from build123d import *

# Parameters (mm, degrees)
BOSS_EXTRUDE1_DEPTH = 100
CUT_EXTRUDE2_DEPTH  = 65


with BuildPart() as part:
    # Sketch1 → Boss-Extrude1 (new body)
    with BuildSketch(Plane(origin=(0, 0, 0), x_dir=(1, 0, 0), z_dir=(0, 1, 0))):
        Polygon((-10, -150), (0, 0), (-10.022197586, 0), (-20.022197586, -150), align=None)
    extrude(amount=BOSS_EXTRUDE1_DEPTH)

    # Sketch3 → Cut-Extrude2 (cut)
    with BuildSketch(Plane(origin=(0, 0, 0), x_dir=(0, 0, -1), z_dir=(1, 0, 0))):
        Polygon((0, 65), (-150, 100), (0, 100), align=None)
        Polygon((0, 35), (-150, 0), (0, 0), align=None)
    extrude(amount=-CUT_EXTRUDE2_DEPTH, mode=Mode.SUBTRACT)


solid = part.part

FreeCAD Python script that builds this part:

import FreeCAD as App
import Part
import Sketcher
from FreeCAD import Vector
Q = App.Units.Quantity

doc = App.newDocument("Part")
body = doc.addObject("PartDesign::Body", "Body")

sketch1 = body.newObject("Sketcher::SketchObject", "Sketch")
sketch1.AttachmentSupport = (doc.getObject("XZ_Plane"), [""])
sketch1.MapMode = "FlatFace"
sketch1.addGeometry([
    Part.LineSegment(Vector(-10, 150, 0), Vector(0, 0, 0)),
    Part.LineSegment(Vector(0, 0, 0), Vector(-10, 0, 0)),
    Part.LineSegment(Vector(-10, 0, 0), Vector(-20, 150, 0)),
    Part.LineSegment(Vector(-20, 150, 0), Vector(-10, 150, 0)),
], False)
sketch1.addConstraint([
    Sketcher.Constraint("Coincident", 0, 2, 1, 1),
    Sketcher.Constraint("Coincident", 1, 2, 2, 1),
    Sketcher.Constraint("Coincident", 2, 2, 3, 1),
    Sketcher.Constraint("Coincident", 3, 2, 0, 1),
    Sketcher.Constraint("Horizontal", 1),
    Sketcher.Constraint("Horizontal", 3),
    Sketcher.Constraint("Coincident", 0, 2, -1, 1),
    Sketcher.Constraint("Parallel", 0, 2),
    Sketcher.Constraint("DistanceY", -1, 1, 2, 2, Q("150 mm")),
    Sketcher.Constraint("DistanceX", 3, 2, -1, 1, Q("10 mm")),
    Sketcher.Constraint("DistanceX", 1, 2, 1, 1, Q("10.022198 mm")),
])
pad1 = body.newObject("PartDesign::Pad", "Pad")
pad1.Profile = sketch1
pad1.Length = 100
pad1.Reversed = True

sketch2 = body.newObject("Sketcher::SketchObject", "Sketch001")
sketch2.AttachmentSupport = (doc.getObject("YZ_Plane"), [""])
sketch2.MapMode = "FlatFace"
sketch2.addGeometry([
    Part.LineSegment(Vector(100, 150, 0), Vector(65, 0, 0)),
    Part.LineSegment(Vector(65, 0, 0), Vector(100, 0, 0)),
    Part.LineSegment(Vector(100, 0, 0), Vector(100, 150, 0)),
    Part.LineSegment(Vector(35, 0, 0), Vector(0, 150, 0)),
    Part.LineSegment(Vector(0, 150, 0), Vector(0, 0, 0)),
    Part.LineSegment(Vector(0, 0, 0), Vector(35, 0, 0)),
], False)
sketch2.addConstraint([
    Sketcher.Constraint("Coincident", 0, 2, 1, 1),
    Sketcher.Constraint("Coincident", 1, 2, 2, 1),
    Sketcher.Constraint("Coincident", 2, 2, 0, 1),
    Sketcher.Constraint("Coincident", 3, 2, 4, 1),
    Sketcher.Constraint("Coincident", 4, 2, 5, 1),
    Sketcher.Constraint("Coincident", 5, 2, 3, 1),
    Sketcher.Constraint("Horizontal", 1),
    Sketcher.Constraint("Vertical", 2),
    Sketcher.Constraint("Vertical", 4),
    Sketcher.Constraint("Horizontal", 5),
    Sketcher.Constraint("Coincident", 4, 2, -1, 1),
    Sketcher.Constraint("PointOnObject", 0, 2, -1),
    Sketcher.Constraint("Horizontal", 2, 2, 3, 2),
    Sketcher.Constraint("Equal", 1, 5),
    Sketcher.Constraint("DistanceX", 1, 1, 1, 2, Q("35 mm")),
    Sketcher.Constraint("DistanceY", 2, 1, 2, 2, Q("150 mm")),
    Sketcher.Constraint("DistanceX", -1, 1, 0, 2, Q("65 mm")),
])
pocket1 = body.newObject("PartDesign::Pocket", "Pocket")
pocket1.Profile = sketch2
pocket1.Length = 65

doc.recompute()
